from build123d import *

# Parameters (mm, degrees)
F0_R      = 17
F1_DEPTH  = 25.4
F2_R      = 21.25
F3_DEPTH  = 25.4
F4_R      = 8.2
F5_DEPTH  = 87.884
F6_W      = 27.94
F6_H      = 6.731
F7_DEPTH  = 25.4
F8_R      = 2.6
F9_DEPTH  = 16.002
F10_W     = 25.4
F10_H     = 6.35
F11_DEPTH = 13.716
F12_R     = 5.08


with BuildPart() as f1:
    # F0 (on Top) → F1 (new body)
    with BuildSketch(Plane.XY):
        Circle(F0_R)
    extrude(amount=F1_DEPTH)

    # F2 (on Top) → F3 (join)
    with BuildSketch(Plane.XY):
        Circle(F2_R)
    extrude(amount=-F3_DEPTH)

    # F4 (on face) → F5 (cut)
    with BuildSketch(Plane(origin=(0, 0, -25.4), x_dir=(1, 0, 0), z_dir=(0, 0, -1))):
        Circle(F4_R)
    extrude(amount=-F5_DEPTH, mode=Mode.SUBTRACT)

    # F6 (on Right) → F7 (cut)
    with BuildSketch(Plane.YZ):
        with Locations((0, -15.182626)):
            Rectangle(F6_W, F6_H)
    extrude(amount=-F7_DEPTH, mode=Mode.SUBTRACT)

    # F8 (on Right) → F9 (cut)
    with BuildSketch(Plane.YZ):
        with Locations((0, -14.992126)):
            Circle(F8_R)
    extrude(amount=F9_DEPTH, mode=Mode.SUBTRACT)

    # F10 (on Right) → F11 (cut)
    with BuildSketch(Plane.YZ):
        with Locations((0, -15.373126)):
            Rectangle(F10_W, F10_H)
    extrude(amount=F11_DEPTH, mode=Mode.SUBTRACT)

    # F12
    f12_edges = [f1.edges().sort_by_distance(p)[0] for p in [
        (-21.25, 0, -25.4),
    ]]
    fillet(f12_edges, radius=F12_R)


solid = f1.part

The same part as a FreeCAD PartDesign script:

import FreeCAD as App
import Part
import Sketcher
Q = App.Units.Quantity


def edges_at(feature, points):
    """Names of the edges that pass closest to the given points."""
    edges = feature.Shape.Edges
    near = lambda p: min(range(len(edges)), key=lambda i: edges[i].distToShape(Part.Vertex(*p))[0])
    return sorted({f"Edge{near(p) + 1}" for p in points})

doc = App.newDocument("Part")
body = doc.addObject("PartDesign::Body", "Body")

# Sketch on XY plane
sketch1 = body.newObject("Sketcher::SketchObject", "Sketch")
sketch1.AttachmentSupport = (doc.getObject("XY_Plane"), [""])
sketch1.MapMode = "FlatFace"
sketch1.addGeometry(Part.Circle(App.Vector(0, 0, 0), App.Vector(0, 0, 1), 17), False)
sketch1.addConstraint([
    Sketcher.Constraint("Coincident", 0, 3, -1, 1),
    Sketcher.Constraint("Diameter", 0, 34.0),
])
pad1 = body.newObject("PartDesign::Pad", "Pad")
pad1.Profile = sketch1
pad1.Length = Q("1 in")

# Sketch on XY plane
sketch2 = body.newObject("Sketcher::SketchObject", "Sketch001")
sketch2.AttachmentSupport = (doc.getObject("XY_Plane"), [""])
sketch2.MapMode = "FlatFace"
sketch2.addGeometry(Part.Circle(App.Vector(0, 0, 0), App.Vector(0, 0, 1), 21), False)
sketch2.addConstraint([
    Sketcher.Constraint("Coincident", 0, 3, -1, 1),
    Sketcher.Constraint("Diameter", 0, 42.5),
])
pad2 = body.newObject("PartDesign::Pad", "Pad001")
pad2.Profile = sketch2
pad2.Length = Q("1 in")
pad2.Reversed = True

# Sketch on XY plane
sketch3 = body.newObject("Sketcher::SketchObject", "Sketch002")
sketch3.AttachmentSupport = (doc.getObject("XY_Plane"), [""])
sketch3.MapMode = "FlatFace"
sketch3.AttachmentOffset = App.Placement(App.Vector(0, 0, -1 * 25.4), App.Rotation())
sketch3.addGeometry(Part.Circle(App.Vector(0, 0, 0), App.Vector(0, 0, 1), 8), False)
sketch3.addConstraint([
    Sketcher.Constraint("Coincident", 0, 3, -1, 1),
    Sketcher.Constraint("Diameter", 0, 16.4),
])
pocket1 = body.newObject("PartDesign::Pocket", "Pocket")
pocket1.Profile = sketch3
pocket1.Length = Q("3.46 in")
pocket1.Reversed = True

# Sketch on YZ plane
sketch4 = body.newObject("Sketcher::SketchObject", "Sketch003")
sketch4.AttachmentSupport = (doc.getObject("YZ_Plane"), [""])
sketch4.MapMode = "FlatFace"
sketch4.addGeometry([
    Part.LineSegment(App.Vector(-14, -12, 0), App.Vector(-14, -19, 0)),
    Part.LineSegment(App.Vector(-14, -19, 0), App.Vector(14, -19, 0)),
    Part.LineSegment(App.Vector(14, -19, 0), App.Vector(14, -12, 0)),
    Part.LineSegment(App.Vector(14, -12, 0), App.Vector(-14, -12, 0)),
], False)
sketch4.addConstraint([
    Sketcher.Constraint("Coincident", 0, 2, 1, 1),
    Sketcher.Constraint("Coincident", 1, 2, 2, 1),
    Sketcher.Constraint("Coincident", 2, 2, 3, 1),
    Sketcher.Constraint("Coincident", 3, 2, 0, 1),
    Sketcher.Constraint("Vertical", 0),
    Sketcher.Constraint("Horizontal", 1),
    Sketcher.Constraint("Vertical", 2),
    Sketcher.Constraint("Horizontal", 3),
    Sketcher.Constraint("DistanceX", 1, 1, 1, 2, Q("1.1 in")),
    Sketcher.Constraint("DistanceY", 0, 2, 0, 1, Q("0.265 in")),
    Sketcher.Constraint("DistanceX", 0, 2, -1, 1, Q("0.55 in")),
    Sketcher.Constraint("DistanceY", 0, 2, -1, 1, 18.548126),
])
pocket2 = body.newObject("PartDesign::Pocket", "Pocket001")
pocket2.Profile = sketch4
pocket2.Length = Q("1 in")

# Sketch on YZ plane
sketch5 = body.newObject("Sketcher::SketchObject", "Sketch004")
sketch5.AttachmentSupport = (doc.getObject("YZ_Plane"), [""])
sketch5.MapMode = "FlatFace"
sketch5.addGeometry(Part.Circle(App.Vector(0, -15, 0), App.Vector(0, 0, 1), 2.6), False)
sketch5.addConstraint([
    Sketcher.Constraint("PointOnObject", 0, 3, -2),
    Sketcher.Constraint("Diameter", 0, 5.2),
    Sketcher.Constraint("DistanceY", 0, 3, -1, 1, 14.992126),
])
pocket3 = body.newObject("PartDesign::Pocket", "Pocket002")
pocket3.Profile = sketch5
pocket3.Length = Q("0.63 in")
pocket3.Reversed = True

# Sketch on YZ plane
sketch6 = body.newObject("Sketcher::SketchObject", "Sketch005")
sketch6.AttachmentSupport = (doc.getObject("YZ_Plane"), [""])
sketch6.MapMode = "FlatFace"
sketch6.addGeometry([
    Part.LineSegment(App.Vector(-13, -12, 0), App.Vector(-13, -19, 0)),
    Part.LineSegment(App.Vector(-13, -19, 0), App.Vector(13, -19, 0)),
    Part.LineSegment(App.Vector(13, -19, 0), App.Vector(13, -12, 0)),
    Part.LineSegment(App.Vector(13, -12, 0), App.Vector(-13, -12, 0)),
], False)
sketch6.addConstraint([
    Sketcher.Constraint("Coincident", 0, 2, 1, 1),
    Sketcher.Constraint("Coincident", 1, 2, 2, 1),
    Sketcher.Constraint("Coincident", 2, 2, 3, 1),
    Sketcher.Constraint("Coincident", 3, 2, 0, 1),
    Sketcher.Constraint("Vertical", 0),
    Sketcher.Constraint("Horizontal", 1),
    Sketcher.Constraint("Vertical", 2),
    Sketcher.Constraint("Horizontal", 3),
    Sketcher.Constraint("DistanceX", 1, 1, 1, 2, Q("1 in")),
    Sketcher.Constraint("DistanceY", 0, 2, 0, 1, Q("0.25 in")),
    Sketcher.Constraint("DistanceX", 0, 2, -1, 1, Q("0.5 in")),
    Sketcher.Constraint("DistanceY", 0, 2, -1, 1, 18.548126),
])
pocket4 = body.newObject("PartDesign::Pocket", "Pocket003")
pocket4.Profile = sketch6
pocket4.Length = Q("0.54 in")
pocket4.Reversed = True
doc.recompute()

fillet = body.newObject("PartDesign::Fillet", "Fillet")
fillet.Base = (pocket4, edges_at(pocket4, [(-21.25, 0, -25.4)]))
fillet.Radius = Q("0.2 in")

doc.recompute()
